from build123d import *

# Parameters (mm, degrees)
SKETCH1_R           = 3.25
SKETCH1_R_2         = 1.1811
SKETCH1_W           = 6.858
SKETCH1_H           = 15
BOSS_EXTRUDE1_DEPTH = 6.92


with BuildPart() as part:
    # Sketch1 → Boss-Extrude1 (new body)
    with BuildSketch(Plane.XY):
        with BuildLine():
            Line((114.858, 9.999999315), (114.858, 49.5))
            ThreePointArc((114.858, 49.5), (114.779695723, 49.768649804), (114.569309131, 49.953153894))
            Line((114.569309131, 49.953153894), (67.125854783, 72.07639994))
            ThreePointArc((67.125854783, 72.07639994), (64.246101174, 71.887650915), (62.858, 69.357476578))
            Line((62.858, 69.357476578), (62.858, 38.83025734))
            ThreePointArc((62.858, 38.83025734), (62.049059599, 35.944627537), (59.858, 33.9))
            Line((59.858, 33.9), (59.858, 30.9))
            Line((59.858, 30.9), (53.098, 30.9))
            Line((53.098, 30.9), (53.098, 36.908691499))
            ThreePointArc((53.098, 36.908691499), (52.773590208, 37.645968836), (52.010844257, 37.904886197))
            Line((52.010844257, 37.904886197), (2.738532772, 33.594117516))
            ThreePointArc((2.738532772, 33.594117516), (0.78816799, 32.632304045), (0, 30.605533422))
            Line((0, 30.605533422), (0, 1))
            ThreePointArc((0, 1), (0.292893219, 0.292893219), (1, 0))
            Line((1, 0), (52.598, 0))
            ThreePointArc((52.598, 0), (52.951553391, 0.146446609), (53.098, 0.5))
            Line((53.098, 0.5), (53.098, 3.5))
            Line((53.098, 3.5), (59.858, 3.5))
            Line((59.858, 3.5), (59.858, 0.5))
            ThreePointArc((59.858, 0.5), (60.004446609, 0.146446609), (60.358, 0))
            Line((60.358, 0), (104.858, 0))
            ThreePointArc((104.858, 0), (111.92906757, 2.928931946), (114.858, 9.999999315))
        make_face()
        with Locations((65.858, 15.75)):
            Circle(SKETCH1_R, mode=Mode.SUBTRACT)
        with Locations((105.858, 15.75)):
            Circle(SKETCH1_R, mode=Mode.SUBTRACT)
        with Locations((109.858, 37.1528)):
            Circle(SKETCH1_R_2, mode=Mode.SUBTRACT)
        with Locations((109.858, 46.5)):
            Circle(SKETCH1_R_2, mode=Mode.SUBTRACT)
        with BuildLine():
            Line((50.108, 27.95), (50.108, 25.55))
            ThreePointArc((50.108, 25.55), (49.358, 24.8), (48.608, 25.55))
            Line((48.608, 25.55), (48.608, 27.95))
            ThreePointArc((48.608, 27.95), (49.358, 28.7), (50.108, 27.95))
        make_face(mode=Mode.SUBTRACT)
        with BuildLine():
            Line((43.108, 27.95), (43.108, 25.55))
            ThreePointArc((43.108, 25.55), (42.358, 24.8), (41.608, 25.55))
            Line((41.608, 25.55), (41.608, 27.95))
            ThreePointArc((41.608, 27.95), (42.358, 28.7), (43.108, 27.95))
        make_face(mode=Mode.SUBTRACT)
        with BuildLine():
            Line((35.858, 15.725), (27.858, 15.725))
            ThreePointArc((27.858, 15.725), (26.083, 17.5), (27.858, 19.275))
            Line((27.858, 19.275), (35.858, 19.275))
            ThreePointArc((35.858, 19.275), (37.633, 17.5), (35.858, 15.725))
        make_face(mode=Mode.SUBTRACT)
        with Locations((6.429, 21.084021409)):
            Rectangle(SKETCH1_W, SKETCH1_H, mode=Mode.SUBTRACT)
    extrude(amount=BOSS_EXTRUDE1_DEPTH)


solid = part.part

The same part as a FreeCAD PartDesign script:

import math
import FreeCAD as App
import Part
import Sketcher
from FreeCAD import Vector
Q = App.Units.Quantity

doc = App.newDocument("Part")
body = doc.addObject("PartDesign::Body", "Body")

sketch1 = body.newObject("Sketcher::SketchObject", "Sketch")
sketch1.AttachmentSupport = (doc.getObject("XY_Plane"), [""])
sketch1.MapMode = "FlatFace"
sketch1.addGeometry(Part.LineSegment(Vector(114.86, 10, 0), Vector(114.86, 49.5, 0)), False)
sketch1.addGeometry(Part.ArcOfCircle(Part.Circle(Vector(114.36, 49.5, 0), Vector(0, 0, 1), 0.5), math.radians(0), math.radians(65)), False)
sketch1.addGeometry(Part.LineSegment(Vector(114.57, 49.95, 0), Vector(67.13, 72.08, 0)), False)
sketch1.addGeometry(Part.ArcOfCircle(Part.Circle(Vector(65.86, 69.36, 0), Vector(0, 0, 1), 3), math.radians(65), math.radians(180)), False)
sketch1.addGeometry(Part.LineSegment(Vector(62.86, 69.36, 0), Vector(62.86, 38.83, 0)), False)
sketch1.addGeometry(Part.ArcOfCircle(Part.Circle(Vector(57.31, 38.83, 0), Vector(0, 0, 1), 5.55), math.radians(-63), math.radians(0)), False)
sketch1.addGeometry(Part.LineSegment(Vector(59.86, 33.9, 0), Vector(59.86, 30.9, 0)), False)
sketch1.addGeometry(Part.LineSegment(Vector(59.86, 30.9, 0), Vector(53.1, 30.9, 0)), False)
sketch1.addGeometry(Part.LineSegment(Vector(53.1, 30.9, 0), Vector(53.1, 36.91, 0)), False)
sketch1.addGeometry(Part.ArcOfCircle(Part.Circle(Vector(52.1, 36.91, 0), Vector(0, 0, 1), 1), math.radians(0), math.radians(95)), False)
sketch1.addGeometry(Part.LineSegment(Vector(52.01, 37.9, 0), Vector(2.74, 33.59, 0)), False)
sketch1.addGeometry(Part.ArcOfCircle(Part.Circle(Vector(3, 30.61, 0), Vector(0, 0, 1), 3), math.radians(95), math.radians(180)), False)
sketch1.addGeometry(Part.LineSegment(Vector(0, 30.61, 0), Vector(0, 1, 0)), False)
sketch1.addGeometry(Part.ArcOfCircle(Part.Circle(Vector(1, 1, 0), Vector(0, 0, 1), 1), math.radians(-180), math.radians(-90)), False)
sketch1.addGeometry(Part.LineSegment(Vector(1, 0, 0), Vector(52.6, 0, 0)), False)
sketch1.addGeometry(Part.ArcOfCircle(Part.Circle(Vector(52.6, 0.5, 0), Vector(0, 0, 1), 0.5), math.radians(-90), math.radians(0)), False)
sketch1.addGeometry(Part.LineSegment(Vector(53.1, 0.5, 0), Vector(53.1, 3.5, 0)), False)
sketch1.addGeometry(Part.LineSegment(Vector(53.1, 3.5, 0), Vector(59.86, 3.5, 0)), False)
sketch1.addGeometry(Part.LineSegment(Vector(59.86, 3.5, 0), Vector(59.86, 0.5, 0)), False)
sketch1.addGeometry(Part.ArcOfCircle(Part.Circle(Vector(60.36, 0.5, 0), Vector(0, 0, 1), 0.5), math.radians(180), math.radians(270)), False)
sketch1.addGeometry(Part.LineSegment(Vector(60.36, 0, 0), Vector(104.86, 0, 0)), False)
sketch1.addGeometry(Part.ArcOfCircle(Part.Circle(Vector(104.86, 10, 0), Vector(0, 0, 1), 10), math.radians(-90), math.radians(0)), False)
sketch1.addGeometry(Part.LineSegment(Vector(9.86, 13.58, 0), Vector(3, 13.58, 0)), False)
sketch1.addGeometry(Part.LineSegment(Vector(3, 13.58, 0), Vector(3, 28.58, 0)), False)
sketch1.addGeometry(Part.LineSegment(Vector(3, 28.58, 0), Vector(9.86, 28.58, 0)), False)
sketch1.addGeometry(Part.LineSegment(Vector(9.86, 28.58, 0), Vector(9.86, 13.58, 0)), False)
sketch1.addGeometry(Part.ArcOfCircle(Part.Circle(Vector(35.86, 17.5, 0), Vector(0, 0, 1), 1.77), math.radians(-90), math.radians(90)), False)
sketch1.addGeometry(Part.LineSegment(Vector(35.86, 15.72, 0), Vector(27.86, 15.72, 0)), False)
sketch1.addGeometry(Part.ArcOfCircle(Part.Circle(Vector(27.86, 17.5, 0), Vector(0, 0, 1), 1.77), math.radians(90), math.radians(270)), False)
sketch1.addGeometry(Part.LineSegment(Vector(27.86, 19.27, 0), Vector(35.86, 19.27, 0)), False)
sketch1.addGeometry(Part.ArcOfCircle(Part.Circle(Vector(42.36, 27.95, 0), Vector(0, 0, 1), 0.75), math.radians(0), math.radians(180)), False)
sketch1.addGeometry(Part.LineSegment(Vector(43.11, 27.95, 0), Vector(43.11, 25.55, 0)), False)
sketch1.addGeometry(Part.ArcOfCircle(Part.Circle(Vector(42.36, 25.55, 0), Vector(0, 0, 1), 0.75), math.radians(180), math.radians(360)), False)
sketch1.addGeometry(Part.LineSegment(Vector(41.61, 25.55, 0), Vector(41.61, 27.95, 0)), False)
sketch1.addGeometry(Part.ArcOfCircle(Part.Circle(Vector(49.36, 27.95, 0), Vector(0, 0, 1), 0.75), math.radians(0), math.radians(180)), False)
sketch1.addGeometry(Part.LineSegment(Vector(50.11, 27.95, 0), Vector(50.11, 25.55, 0)), False)
sketch1.addGeometry(Part.ArcOfCircle(Part.Circle(Vector(49.36, 25.55, 0), Vector(0, 0, 1), 0.75), math.radians(180), math.radians(360)), False)
sketch1.addGeometry(Part.LineSegment(Vector(48.61, 25.55, 0), Vector(48.61, 27.95, 0)), False)
sketch1.addGeometry(Part.Circle(Vector(65.86, 15.75, 0), Vector(0, 0, 1), 3.25), False)
sketch1.addGeometry(Part.Circle(Vector(105.86, 15.75, 0), Vector(0, 0, 1), 3.25), False)
sketch1.addGeometry(Part.Circle(Vector(109.86, 37.15, 0), Vector(0, 0, 1), 1.18), False)
sketch1.addGeometry(Part.Circle(Vector(109.86, 46.5, 0), Vector(0, 0, 1), 1.18), False)
sketch1.addConstraint(Sketcher.Constraint("Tangent", 0, 2, 1, 1))
sketch1.addConstraint(Sketcher.Constraint("Tangent", 1, 2, 2, 1))
sketch1.addConstraint(Sketcher.Constraint("Tangent", 2, 2, 3, 1))
sketch1.addConstraint(Sketcher.Constraint("Tangent", 3, 2, 4, 1))
sketch1.addConstraint(Sketcher.Constraint("Tangent", 4, 2, 5, 2))
sketch1.addConstraint(Sketcher.Constraint("Coincident", 5, 1, 6, 1))
sketch1.addConstraint(Sketcher.Constraint("Coincident", 6, 2, 7, 1))
sketch1.addConstraint(Sketcher.Constraint("Coincident", 7, 2, 8, 1))
sketch1.addConstraint(Sketcher.Constraint("Tangent", 8, 2, 9, 1))
sketch1.addConstraint(Sketcher.Constraint("Tangent", 9, 2, 10, 1))
sketch1.addConstraint(Sketcher.Constraint("Tangent", 10, 2, 11, 1))
sketch1.addConstraint(Sketcher.Constraint("Tangent", 11, 2, 12, 1))
sketch1.addConstraint(Sketcher.Constraint("Tangent", 12, 2, 13, 1))
sketch1.addConstraint(Sketcher.Constraint("Tangent", 13, 2, 14, 1))
sketch1.addConstraint(Sketcher.Constraint("Tangent", 14, 2, 15, 1))
sketch1.addConstraint(Sketcher.Constraint("Tangent", 15, 2, 16, 1))
sketch1.addConstraint(Sketcher.Constraint("Coincident", 16, 2, 17, 1))
sketch1.addConstraint(Sketcher.Constraint("Coincident", 17, 2, 18, 1))
sketch1.addConstraint(Sketcher.Constraint("Tangent", 18, 2, 19, 1))
sketch1.addConstraint(Sketcher.Constraint("Tangent", 19, 2, 20, 1))
sketch1.addConstraint(Sketcher.Constraint("Tangent", 20, 2, 21, 1))
sketch1.addConstraint(Sketcher.Constraint("Tangent", 21, 2, 0, 1))
sketch1.addConstraint(Sketcher.Constraint("Coincident", 22, 2, 23, 1))
sketch1.addConstraint(Sketcher.Constraint("Coincident", 23, 2, 24, 1))
sketch1.addConstraint(Sketcher.Constraint("Coincident", 24, 2, 25, 1))
sketch1.addConstraint(Sketcher.Constraint("Coincident", 25, 2, 22, 1))
sketch1.addConstraint(Sketcher.Constraint("Tangent", 26, 1, 27, 1))
sketch1.addConstraint(Sketcher.Constraint("Tangent", 27, 2, 28, 2))
sketch1.addConstraint(Sketcher.Constraint("Tangent", 28, 1, 29, 1))
sketch1.addConstraint(Sketcher.Constraint("Tangent", 29, 2, 26, 2))
sketch1.addConstraint(Sketcher.Constraint("Tangent", 30, 1, 31, 1))
sketch1.addConstraint(Sketcher.Constraint("Tangent", 31, 2, 32, 2))
sketch1.addConstraint(Sketcher.Constraint("Tangent", 32, 1, 33, 1))
sketch1.addConstraint(Sketcher.Constraint("Tangent", 33, 2, 30, 2))
sketch1.addConstraint(Sketcher.Constraint("Tangent", 34, 1, 35, 1))
sketch1.addConstraint(Sketcher.Constraint("Tangent", 35, 2, 36, 2))
sketch1.addConstraint(Sketcher.Constraint("Tangent", 36, 1, 37, 1))
sketch1.addConstraint(Sketcher.Constraint("Tangent", 37, 2, 34, 2))
sketch1.addConstraint(Sketcher.Constraint("Vertical", 0))
sketch1.addConstraint(Sketcher.Constraint("Vertical", 4))
sketch1.addConstraint(Sketcher.Constraint("Vertical", 6))
sketch1.addConstraint(Sketcher.Constraint("Horizontal", 7))
sketch1.addConstraint(Sketcher.Constraint("Vertical", 8))
sketch1.addConstraint(Sketcher.Constraint("Vertical", 12))
sketch1.addConstraint(Sketcher.Constraint("Horizontal", 14))
sketch1.addConstraint(Sketcher.Constraint("Vertical", 16))
sketch1.addConstraint(Sketcher.Constraint("Horizontal", 17))
sketch1.addConstraint(Sketcher.Constraint("Vertical", 18))
sketch1.addConstraint(Sketcher.Constraint("Horizontal", 20))
sketch1.addConstraint(Sketcher.Constraint("Horizontal", 22))
sketch1.addConstraint(Sketcher.Constraint("Vertical", 23))
sketch1.addConstraint(Sketcher.Constraint("Horizontal", 24))
sketch1.addConstraint(Sketcher.Constraint("Vertical", 25))
sketch1.addConstraint(Sketcher.Constraint("Horizontal", 27))
sketch1.addConstraint(Sketcher.Constraint("Horizontal", 29))
sketch1.addConstraint(Sketcher.Constraint("Vertical", 31))
sketch1.addConstraint(Sketcher.Constraint("Vertical", 33))
sketch1.addConstraint(Sketcher.Constraint("Vertical", 35))
sketch1.addConstraint(Sketcher.Constraint("Vertical", 37))
sketch1.addConstraint(Sketcher.Constraint("Equal", 3, 11))
sketch1.addConstraint(Sketcher.Constraint("Equal", 9, 13))
sketch1.addConstraint(Sketcher.Constraint("Equal", 1, 15))
sketch1.addConstraint(Sketcher.Constraint("Equal", 15, 19))
sketch1.addConstraint(Sketcher.Constraint("Equal", 32, 34))
sketch1.addConstraint(Sketcher.Constraint("Equal", 38, 39))
sketch1.addConstraint(Sketcher.Constraint("Equal", 40, 41))
sketch1.addConstraint(Sketcher.Constraint("PointOnObject", 11, 2, -2))
sketch1.addConstraint(Sketcher.Constraint("PointOnObject", 13, 2, -1))
sketch1.addConstraint(Sketcher.Constraint("PointOnObject", 19, 2, -1))
sketch1.addConstraint(Sketcher.Constraint("Horizontal", 30, 3, 34, 3))
sketch1.addConstraint(Sketcher.Constraint("Horizontal", 32, 3, 36, 3))
sketch1.addConstraint(Sketcher.Constraint("Horizontal", 38, 3, 39, 3))
sketch1.addConstraint(Sketcher.Constraint("Vertical", 3, 3, 38, 3))
sketch1.addConstraint(Sketcher.Constraint("Vertical", 40, 3, 41, 3))
sketch1.addConstraint(Sketcher.Constraint("Vertical", 8, 2, 15, 2))
sketch1.addConstraint(Sketcher.Constraint("Vertical", 6, 2, 17, 2))
sketch1.addConstraint(Sketcher.Constraint("Vertical", 11, 3, 22, 2))
sketch1.addConstraint(Sketcher.Constraint("Equal", 6, 16))
sketch1.addConstraint(Sketcher.Constraint("Radius", 3, 3.0))
sketch1.addConstraint(Sketcher.Constraint("Radius", 9, 1.0))
sketch1.addConstraint(Sketcher.Constraint("Radius", 21, 10.0))
sketch1.addConstraint(Sketcher.Constraint("Diameter", 38, 6.5))
sketch1.addConstraint(Sketcher.Constraint("Radius", 1, 0.5))
sketch1.addConstraint(Sketcher.Constraint("DistanceX", 27, 2, 27, 1, 8.0))
sketch1.addConstraint(Sketcher.Constraint("DistanceY", 6, 2, 6, 1, 3.0))
sketch1.addConstraint(Sketcher.Constraint("DistanceY", 23, 1, 23, 2, 15.0))
sketch1.addConstraint(Sketcher.Constraint("Angle", 2, Q("155 deg")))
sketch1.addConstraint(Sketcher.Constraint("Angle", 10, Q("-175 deg")))
sketch1.addConstraint(Sketcher.Constraint("Radius", 30, 0.75))
sketch1.addConstraint(Sketcher.Constraint("DistanceX", 20, 1, 20, 2, 44.5))
sketch1.addConstraint(Sketcher.Constraint("DistanceY", 0, 1, 0, 2, 39.500001))
sketch1.addConstraint(Sketcher.Constraint("DistanceY", 31, 2, 31, 1, 2.4))
sketch1.addConstraint(Sketcher.Constraint("Radius", 26, 1.775))
sketch1.addConstraint(Sketcher.Constraint("DistanceY", 15, 3, 26, 3, 17.0))
sketch1.addConstraint(Sketcher.Constraint("DistanceX", 30, 3, 34, 3, 7.0))
sketch1.addConstraint(Sketcher.Constraint("DistanceX", 21, 3, 39, 3, 1.0))
sketch1.addConstraint(Sketcher.Constraint("DistanceX", 38, 3, 39, 3, 40.0))
sketch1.addConstraint(Sketcher.Constraint("DistanceX", 39, 3, 40, 3, 4.0))
sketch1.addConstraint(Sketcher.Constraint("DistanceY", 41, 3, 1, 3, 3.0))
sketch1.addConstraint(Sketcher.Constraint("DistanceX", 25, 2, 27, 2, 18.0))
sketch1.addConstraint(Sketcher.Constraint("Diameter", 40, 2.3622))
sketch1.addConstraint(Sketcher.Constraint("DistanceX", 7, 2, 7, 1, 6.76))
sketch1.addConstraint(Sketcher.Constraint("DistanceY", -1, 1, 5, 1, 33.9))
sketch1.addConstraint(Sketcher.Constraint("DistanceX", 26, 3, 19, 3, 24.5))
sketch1.addConstraint(Sketcher.Constraint("DistanceX", 26, 3, 30, 3, 6.5))
sketch1.addConstraint(Sketcher.Constraint("DistanceY", 38, 3, 36, 3, 9.8))
sketch1.addConstraint(Sketcher.Constraint("DistanceX", 14, 1, 14, 2, 51.598))
sketch1.addConstraint(Sketcher.Constraint("DistanceY", -1, 1, 30, 3, 27.95))
sketch1.addConstraint(Sketcher.Constraint("Radius", 5, 5.55124))
sketch1.addConstraint(Sketcher.Constraint("DistanceY", 8, 1, 8, 2, 6.008691))
sketch1.addConstraint(Sketcher.Constraint("DistanceY", -1, 1, 40, 3, 37.1528))
sketch1.addConstraint(Sketcher.Constraint("DistanceY", -1, 1, 22, 2, 13.584021))
pad1 = body.newObject("PartDesign::Pad", "Pad")
pad1.Profile = sketch1
pad1.Length = 6.92

doc.recompute()
